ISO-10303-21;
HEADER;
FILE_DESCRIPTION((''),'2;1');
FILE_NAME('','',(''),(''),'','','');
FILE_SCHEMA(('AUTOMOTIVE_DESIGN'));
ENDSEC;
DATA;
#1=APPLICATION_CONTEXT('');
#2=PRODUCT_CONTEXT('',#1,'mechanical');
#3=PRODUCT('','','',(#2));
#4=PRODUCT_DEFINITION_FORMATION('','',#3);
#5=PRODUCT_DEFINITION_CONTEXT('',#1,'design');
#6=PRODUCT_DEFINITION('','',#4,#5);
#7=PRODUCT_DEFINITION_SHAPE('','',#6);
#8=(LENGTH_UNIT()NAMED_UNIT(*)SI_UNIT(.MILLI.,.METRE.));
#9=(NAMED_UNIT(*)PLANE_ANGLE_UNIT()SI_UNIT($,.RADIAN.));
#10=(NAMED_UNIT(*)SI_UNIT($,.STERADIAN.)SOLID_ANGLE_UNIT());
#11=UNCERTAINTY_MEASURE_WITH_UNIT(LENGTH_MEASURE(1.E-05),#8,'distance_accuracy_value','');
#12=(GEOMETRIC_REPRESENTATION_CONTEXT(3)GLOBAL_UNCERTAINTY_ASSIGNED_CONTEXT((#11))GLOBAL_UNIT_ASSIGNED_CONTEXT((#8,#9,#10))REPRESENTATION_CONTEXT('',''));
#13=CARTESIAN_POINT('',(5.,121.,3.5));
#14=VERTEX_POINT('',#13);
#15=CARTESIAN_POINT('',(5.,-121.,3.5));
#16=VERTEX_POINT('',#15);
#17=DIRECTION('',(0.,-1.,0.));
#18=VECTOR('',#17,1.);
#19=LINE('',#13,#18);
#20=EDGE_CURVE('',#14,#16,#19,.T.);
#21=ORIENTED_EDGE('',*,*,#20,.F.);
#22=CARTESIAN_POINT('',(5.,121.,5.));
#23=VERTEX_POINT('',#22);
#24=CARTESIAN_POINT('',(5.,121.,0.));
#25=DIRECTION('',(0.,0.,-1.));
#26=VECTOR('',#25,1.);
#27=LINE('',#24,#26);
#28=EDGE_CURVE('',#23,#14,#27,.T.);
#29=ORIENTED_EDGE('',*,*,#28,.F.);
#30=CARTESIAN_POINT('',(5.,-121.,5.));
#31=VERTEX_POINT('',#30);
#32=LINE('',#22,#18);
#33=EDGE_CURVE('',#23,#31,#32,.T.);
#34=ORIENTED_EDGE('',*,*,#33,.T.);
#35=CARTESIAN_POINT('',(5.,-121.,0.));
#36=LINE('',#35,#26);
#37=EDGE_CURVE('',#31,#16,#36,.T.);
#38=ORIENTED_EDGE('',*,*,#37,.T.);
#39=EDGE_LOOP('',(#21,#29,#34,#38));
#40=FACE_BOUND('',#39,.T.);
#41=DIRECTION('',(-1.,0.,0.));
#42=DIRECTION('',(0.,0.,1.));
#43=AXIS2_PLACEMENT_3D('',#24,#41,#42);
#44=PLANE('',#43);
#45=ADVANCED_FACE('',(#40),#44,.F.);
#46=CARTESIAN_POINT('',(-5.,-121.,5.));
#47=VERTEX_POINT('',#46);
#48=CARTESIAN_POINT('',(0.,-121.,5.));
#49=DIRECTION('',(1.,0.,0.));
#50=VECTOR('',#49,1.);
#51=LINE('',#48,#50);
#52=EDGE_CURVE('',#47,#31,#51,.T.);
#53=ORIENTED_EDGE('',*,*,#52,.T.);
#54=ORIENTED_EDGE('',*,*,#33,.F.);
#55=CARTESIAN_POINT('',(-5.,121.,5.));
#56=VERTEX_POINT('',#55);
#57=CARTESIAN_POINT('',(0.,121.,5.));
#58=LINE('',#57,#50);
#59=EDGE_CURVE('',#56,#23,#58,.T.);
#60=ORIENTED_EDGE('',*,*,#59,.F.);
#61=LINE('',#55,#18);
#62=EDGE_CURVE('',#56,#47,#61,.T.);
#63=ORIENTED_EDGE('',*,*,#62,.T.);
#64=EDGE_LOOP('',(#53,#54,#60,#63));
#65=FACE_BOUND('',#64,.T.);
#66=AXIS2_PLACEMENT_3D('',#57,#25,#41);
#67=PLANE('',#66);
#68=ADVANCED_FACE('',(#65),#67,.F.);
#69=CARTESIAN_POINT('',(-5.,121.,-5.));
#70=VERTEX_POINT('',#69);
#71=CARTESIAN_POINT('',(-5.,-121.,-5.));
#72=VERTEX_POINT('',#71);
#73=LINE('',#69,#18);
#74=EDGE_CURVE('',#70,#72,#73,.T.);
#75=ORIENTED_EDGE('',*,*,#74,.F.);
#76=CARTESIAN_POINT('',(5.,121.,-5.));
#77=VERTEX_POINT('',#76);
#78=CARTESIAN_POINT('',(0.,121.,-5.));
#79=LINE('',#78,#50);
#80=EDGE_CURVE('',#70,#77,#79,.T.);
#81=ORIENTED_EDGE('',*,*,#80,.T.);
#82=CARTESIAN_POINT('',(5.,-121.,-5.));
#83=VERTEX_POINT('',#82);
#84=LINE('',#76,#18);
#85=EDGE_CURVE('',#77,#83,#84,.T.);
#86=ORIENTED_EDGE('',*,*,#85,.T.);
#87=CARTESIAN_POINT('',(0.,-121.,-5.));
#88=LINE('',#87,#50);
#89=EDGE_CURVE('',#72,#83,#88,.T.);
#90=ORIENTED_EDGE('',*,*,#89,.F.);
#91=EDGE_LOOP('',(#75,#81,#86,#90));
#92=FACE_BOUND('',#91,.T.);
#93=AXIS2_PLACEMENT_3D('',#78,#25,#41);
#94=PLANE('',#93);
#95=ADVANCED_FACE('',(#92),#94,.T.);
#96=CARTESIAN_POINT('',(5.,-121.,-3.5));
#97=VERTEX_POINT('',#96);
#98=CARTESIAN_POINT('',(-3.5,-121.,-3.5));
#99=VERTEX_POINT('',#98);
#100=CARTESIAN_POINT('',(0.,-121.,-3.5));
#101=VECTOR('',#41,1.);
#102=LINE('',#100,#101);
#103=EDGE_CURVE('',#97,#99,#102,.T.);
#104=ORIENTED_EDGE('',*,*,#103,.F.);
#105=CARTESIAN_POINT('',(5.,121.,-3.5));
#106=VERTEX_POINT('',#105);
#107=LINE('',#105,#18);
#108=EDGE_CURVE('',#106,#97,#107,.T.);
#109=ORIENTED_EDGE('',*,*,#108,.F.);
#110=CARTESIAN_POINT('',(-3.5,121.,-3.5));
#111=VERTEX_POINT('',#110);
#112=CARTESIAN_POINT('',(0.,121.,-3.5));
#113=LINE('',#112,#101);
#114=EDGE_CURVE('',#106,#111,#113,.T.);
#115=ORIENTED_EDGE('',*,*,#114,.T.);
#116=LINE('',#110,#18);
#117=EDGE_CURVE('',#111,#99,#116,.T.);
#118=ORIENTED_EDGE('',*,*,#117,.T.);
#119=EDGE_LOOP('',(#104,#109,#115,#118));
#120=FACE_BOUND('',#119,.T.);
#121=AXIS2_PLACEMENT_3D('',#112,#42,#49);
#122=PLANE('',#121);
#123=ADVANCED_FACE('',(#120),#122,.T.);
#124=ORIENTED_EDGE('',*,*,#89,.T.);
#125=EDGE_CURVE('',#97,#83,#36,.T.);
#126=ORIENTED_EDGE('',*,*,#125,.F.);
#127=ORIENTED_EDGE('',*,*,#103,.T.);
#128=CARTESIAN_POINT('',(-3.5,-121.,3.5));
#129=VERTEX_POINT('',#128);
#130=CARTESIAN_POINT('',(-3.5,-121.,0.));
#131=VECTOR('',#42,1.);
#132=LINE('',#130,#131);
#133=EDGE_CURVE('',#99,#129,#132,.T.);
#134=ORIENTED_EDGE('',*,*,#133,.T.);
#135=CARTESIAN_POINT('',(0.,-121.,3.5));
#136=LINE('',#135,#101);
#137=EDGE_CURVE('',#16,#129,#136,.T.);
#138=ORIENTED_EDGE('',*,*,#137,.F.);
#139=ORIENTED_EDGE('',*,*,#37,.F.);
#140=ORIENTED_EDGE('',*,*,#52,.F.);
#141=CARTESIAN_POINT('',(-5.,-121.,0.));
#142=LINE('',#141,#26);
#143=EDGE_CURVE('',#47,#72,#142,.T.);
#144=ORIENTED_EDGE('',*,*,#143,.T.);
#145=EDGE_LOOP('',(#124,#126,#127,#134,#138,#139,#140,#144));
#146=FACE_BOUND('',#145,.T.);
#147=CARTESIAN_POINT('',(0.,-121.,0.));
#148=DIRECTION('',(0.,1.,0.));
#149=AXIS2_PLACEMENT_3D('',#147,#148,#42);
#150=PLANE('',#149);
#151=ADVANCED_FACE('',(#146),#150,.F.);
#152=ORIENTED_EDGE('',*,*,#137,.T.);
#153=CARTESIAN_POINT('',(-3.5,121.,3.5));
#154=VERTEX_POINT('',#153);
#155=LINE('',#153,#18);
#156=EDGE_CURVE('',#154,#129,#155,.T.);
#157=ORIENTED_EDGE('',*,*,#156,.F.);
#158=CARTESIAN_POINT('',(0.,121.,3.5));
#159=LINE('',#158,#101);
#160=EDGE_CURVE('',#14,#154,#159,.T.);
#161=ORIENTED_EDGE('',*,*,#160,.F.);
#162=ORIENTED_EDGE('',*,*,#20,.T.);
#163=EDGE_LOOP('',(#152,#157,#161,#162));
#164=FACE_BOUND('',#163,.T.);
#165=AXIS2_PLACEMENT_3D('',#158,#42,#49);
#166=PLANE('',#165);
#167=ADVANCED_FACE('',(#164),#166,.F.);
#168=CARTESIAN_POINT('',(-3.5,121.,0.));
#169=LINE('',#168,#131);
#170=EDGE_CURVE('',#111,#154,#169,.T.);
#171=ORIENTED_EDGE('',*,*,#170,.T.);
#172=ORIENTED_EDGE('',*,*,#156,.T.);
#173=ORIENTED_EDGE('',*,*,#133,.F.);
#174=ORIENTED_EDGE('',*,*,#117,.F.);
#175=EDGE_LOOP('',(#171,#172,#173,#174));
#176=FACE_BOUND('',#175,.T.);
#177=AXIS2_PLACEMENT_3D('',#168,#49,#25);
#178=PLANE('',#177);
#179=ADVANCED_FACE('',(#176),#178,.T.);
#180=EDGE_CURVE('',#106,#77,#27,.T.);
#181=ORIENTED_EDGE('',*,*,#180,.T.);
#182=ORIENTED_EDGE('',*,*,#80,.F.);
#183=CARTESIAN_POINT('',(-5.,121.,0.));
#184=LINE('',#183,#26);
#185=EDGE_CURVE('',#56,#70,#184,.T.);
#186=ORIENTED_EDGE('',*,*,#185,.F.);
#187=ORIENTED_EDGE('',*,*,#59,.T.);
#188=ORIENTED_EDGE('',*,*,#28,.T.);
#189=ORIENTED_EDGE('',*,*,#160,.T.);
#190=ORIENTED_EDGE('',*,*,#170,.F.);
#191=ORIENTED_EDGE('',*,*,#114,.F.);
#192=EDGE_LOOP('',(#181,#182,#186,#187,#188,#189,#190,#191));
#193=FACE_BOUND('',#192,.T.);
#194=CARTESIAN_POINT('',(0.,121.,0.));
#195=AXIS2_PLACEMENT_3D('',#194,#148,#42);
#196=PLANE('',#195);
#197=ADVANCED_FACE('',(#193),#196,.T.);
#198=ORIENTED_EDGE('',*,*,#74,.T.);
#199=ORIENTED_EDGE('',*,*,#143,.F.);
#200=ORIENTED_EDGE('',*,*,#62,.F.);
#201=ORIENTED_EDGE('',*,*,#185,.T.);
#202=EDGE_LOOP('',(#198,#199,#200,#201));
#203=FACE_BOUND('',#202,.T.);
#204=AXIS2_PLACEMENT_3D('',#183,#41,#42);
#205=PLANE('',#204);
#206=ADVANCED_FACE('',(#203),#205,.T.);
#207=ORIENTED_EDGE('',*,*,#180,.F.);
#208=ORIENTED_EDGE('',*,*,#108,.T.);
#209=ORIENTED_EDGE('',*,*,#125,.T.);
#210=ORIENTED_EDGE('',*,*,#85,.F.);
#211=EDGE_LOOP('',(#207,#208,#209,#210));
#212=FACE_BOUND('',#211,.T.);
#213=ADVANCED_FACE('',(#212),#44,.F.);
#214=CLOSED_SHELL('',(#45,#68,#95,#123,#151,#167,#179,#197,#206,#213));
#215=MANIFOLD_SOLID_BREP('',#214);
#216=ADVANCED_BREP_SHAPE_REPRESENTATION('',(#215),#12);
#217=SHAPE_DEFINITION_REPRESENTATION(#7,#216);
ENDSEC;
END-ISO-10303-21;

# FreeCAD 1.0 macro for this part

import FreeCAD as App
import Part
import Sketcher

V = App.Vector
Q = App.Units.Quantity

doc = App.newDocument("Part")
body = doc.addObject("PartDesign::Body", "Body")

sketch1 = body.newObject("Sketcher::SketchObject", "Sketch")
sketch1.AttachmentSupport = (doc.getObject("XZ_Plane"), [""])
sketch1.MapMode = "FlatFace"
sketch1.addGeometry([
    Part.LineSegment(V(-5, -5, 0), V(-5, 5, 0)),
    Part.LineSegment(V(-5, 5, 0), V(5, 5, 0)),
    Part.LineSegment(V(5, 5, 0), V(5, 3.5, 0)),
    Part.LineSegment(V(5, 3.5, 0), V(-3.5, 3.5, 0)),
    Part.LineSegment(V(-3.5, 3.5, 0), V(-3.5, -3.5, 0)),
    Part.LineSegment(V(-3.5, -3.5, 0), V(5, -3.5, 0)),
    Part.LineSegment(V(5, -3.5, 0), V(5, -5, 0)),
    Part.LineSegment(V(5, -5, 0), V(-5, -5, 0)),
], False)
sketch1.addConstraint([
    Sketcher.Constraint("Coincident", 0, 2, 1, 1),
    Sketcher.Constraint("Coincident", 1, 2, 2, 1),
    Sketcher.Constraint("Coincident", 2, 2, 3, 1),
    Sketcher.Constraint("Coincident", 3, 2, 4, 1),
    Sketcher.Constraint("Coincident", 4, 2, 5, 1),
    Sketcher.Constraint("Coincident", 5, 2, 6, 1),
    Sketcher.Constraint("Coincident", 6, 2, 7, 1),
    Sketcher.Constraint("Coincident", 7, 2, 0, 1),
    Sketcher.Constraint("Vertical", 0),
    Sketcher.Constraint("Horizontal", 1),
    Sketcher.Constraint("Vertical", 2),
    Sketcher.Constraint("Horizontal", 3),
    Sketcher.Constraint("Vertical", 4),
    Sketcher.Constraint("Horizontal", 5),
    Sketcher.Constraint("Vertical", 6),
    Sketcher.Constraint("Horizontal", 7),
    Sketcher.Constraint("Symmetric", 0, 2, 6, 2, -1, 1),
    Sketcher.Constraint("Symmetric", 2, 2, 5, 2, -1),
    Sketcher.Constraint("Equal", 7, 0),
    Sketcher.Constraint("DistanceX", 1, 1, 1, 2, Q("10 mm")),
    Sketcher.Constraint("DistanceY", 4, 2, 4, 1, Q("7 mm")),
    Sketcher.Constraint("DistanceX", 3, 2, 3, 1, Q("8.5 mm")),
])
pad1 = body.newObject("PartDesign::Pad", "Pad")
pad1.Profile = sketch1
pad1.Length = 242
pad1.Midplane = True

doc.recompute()
